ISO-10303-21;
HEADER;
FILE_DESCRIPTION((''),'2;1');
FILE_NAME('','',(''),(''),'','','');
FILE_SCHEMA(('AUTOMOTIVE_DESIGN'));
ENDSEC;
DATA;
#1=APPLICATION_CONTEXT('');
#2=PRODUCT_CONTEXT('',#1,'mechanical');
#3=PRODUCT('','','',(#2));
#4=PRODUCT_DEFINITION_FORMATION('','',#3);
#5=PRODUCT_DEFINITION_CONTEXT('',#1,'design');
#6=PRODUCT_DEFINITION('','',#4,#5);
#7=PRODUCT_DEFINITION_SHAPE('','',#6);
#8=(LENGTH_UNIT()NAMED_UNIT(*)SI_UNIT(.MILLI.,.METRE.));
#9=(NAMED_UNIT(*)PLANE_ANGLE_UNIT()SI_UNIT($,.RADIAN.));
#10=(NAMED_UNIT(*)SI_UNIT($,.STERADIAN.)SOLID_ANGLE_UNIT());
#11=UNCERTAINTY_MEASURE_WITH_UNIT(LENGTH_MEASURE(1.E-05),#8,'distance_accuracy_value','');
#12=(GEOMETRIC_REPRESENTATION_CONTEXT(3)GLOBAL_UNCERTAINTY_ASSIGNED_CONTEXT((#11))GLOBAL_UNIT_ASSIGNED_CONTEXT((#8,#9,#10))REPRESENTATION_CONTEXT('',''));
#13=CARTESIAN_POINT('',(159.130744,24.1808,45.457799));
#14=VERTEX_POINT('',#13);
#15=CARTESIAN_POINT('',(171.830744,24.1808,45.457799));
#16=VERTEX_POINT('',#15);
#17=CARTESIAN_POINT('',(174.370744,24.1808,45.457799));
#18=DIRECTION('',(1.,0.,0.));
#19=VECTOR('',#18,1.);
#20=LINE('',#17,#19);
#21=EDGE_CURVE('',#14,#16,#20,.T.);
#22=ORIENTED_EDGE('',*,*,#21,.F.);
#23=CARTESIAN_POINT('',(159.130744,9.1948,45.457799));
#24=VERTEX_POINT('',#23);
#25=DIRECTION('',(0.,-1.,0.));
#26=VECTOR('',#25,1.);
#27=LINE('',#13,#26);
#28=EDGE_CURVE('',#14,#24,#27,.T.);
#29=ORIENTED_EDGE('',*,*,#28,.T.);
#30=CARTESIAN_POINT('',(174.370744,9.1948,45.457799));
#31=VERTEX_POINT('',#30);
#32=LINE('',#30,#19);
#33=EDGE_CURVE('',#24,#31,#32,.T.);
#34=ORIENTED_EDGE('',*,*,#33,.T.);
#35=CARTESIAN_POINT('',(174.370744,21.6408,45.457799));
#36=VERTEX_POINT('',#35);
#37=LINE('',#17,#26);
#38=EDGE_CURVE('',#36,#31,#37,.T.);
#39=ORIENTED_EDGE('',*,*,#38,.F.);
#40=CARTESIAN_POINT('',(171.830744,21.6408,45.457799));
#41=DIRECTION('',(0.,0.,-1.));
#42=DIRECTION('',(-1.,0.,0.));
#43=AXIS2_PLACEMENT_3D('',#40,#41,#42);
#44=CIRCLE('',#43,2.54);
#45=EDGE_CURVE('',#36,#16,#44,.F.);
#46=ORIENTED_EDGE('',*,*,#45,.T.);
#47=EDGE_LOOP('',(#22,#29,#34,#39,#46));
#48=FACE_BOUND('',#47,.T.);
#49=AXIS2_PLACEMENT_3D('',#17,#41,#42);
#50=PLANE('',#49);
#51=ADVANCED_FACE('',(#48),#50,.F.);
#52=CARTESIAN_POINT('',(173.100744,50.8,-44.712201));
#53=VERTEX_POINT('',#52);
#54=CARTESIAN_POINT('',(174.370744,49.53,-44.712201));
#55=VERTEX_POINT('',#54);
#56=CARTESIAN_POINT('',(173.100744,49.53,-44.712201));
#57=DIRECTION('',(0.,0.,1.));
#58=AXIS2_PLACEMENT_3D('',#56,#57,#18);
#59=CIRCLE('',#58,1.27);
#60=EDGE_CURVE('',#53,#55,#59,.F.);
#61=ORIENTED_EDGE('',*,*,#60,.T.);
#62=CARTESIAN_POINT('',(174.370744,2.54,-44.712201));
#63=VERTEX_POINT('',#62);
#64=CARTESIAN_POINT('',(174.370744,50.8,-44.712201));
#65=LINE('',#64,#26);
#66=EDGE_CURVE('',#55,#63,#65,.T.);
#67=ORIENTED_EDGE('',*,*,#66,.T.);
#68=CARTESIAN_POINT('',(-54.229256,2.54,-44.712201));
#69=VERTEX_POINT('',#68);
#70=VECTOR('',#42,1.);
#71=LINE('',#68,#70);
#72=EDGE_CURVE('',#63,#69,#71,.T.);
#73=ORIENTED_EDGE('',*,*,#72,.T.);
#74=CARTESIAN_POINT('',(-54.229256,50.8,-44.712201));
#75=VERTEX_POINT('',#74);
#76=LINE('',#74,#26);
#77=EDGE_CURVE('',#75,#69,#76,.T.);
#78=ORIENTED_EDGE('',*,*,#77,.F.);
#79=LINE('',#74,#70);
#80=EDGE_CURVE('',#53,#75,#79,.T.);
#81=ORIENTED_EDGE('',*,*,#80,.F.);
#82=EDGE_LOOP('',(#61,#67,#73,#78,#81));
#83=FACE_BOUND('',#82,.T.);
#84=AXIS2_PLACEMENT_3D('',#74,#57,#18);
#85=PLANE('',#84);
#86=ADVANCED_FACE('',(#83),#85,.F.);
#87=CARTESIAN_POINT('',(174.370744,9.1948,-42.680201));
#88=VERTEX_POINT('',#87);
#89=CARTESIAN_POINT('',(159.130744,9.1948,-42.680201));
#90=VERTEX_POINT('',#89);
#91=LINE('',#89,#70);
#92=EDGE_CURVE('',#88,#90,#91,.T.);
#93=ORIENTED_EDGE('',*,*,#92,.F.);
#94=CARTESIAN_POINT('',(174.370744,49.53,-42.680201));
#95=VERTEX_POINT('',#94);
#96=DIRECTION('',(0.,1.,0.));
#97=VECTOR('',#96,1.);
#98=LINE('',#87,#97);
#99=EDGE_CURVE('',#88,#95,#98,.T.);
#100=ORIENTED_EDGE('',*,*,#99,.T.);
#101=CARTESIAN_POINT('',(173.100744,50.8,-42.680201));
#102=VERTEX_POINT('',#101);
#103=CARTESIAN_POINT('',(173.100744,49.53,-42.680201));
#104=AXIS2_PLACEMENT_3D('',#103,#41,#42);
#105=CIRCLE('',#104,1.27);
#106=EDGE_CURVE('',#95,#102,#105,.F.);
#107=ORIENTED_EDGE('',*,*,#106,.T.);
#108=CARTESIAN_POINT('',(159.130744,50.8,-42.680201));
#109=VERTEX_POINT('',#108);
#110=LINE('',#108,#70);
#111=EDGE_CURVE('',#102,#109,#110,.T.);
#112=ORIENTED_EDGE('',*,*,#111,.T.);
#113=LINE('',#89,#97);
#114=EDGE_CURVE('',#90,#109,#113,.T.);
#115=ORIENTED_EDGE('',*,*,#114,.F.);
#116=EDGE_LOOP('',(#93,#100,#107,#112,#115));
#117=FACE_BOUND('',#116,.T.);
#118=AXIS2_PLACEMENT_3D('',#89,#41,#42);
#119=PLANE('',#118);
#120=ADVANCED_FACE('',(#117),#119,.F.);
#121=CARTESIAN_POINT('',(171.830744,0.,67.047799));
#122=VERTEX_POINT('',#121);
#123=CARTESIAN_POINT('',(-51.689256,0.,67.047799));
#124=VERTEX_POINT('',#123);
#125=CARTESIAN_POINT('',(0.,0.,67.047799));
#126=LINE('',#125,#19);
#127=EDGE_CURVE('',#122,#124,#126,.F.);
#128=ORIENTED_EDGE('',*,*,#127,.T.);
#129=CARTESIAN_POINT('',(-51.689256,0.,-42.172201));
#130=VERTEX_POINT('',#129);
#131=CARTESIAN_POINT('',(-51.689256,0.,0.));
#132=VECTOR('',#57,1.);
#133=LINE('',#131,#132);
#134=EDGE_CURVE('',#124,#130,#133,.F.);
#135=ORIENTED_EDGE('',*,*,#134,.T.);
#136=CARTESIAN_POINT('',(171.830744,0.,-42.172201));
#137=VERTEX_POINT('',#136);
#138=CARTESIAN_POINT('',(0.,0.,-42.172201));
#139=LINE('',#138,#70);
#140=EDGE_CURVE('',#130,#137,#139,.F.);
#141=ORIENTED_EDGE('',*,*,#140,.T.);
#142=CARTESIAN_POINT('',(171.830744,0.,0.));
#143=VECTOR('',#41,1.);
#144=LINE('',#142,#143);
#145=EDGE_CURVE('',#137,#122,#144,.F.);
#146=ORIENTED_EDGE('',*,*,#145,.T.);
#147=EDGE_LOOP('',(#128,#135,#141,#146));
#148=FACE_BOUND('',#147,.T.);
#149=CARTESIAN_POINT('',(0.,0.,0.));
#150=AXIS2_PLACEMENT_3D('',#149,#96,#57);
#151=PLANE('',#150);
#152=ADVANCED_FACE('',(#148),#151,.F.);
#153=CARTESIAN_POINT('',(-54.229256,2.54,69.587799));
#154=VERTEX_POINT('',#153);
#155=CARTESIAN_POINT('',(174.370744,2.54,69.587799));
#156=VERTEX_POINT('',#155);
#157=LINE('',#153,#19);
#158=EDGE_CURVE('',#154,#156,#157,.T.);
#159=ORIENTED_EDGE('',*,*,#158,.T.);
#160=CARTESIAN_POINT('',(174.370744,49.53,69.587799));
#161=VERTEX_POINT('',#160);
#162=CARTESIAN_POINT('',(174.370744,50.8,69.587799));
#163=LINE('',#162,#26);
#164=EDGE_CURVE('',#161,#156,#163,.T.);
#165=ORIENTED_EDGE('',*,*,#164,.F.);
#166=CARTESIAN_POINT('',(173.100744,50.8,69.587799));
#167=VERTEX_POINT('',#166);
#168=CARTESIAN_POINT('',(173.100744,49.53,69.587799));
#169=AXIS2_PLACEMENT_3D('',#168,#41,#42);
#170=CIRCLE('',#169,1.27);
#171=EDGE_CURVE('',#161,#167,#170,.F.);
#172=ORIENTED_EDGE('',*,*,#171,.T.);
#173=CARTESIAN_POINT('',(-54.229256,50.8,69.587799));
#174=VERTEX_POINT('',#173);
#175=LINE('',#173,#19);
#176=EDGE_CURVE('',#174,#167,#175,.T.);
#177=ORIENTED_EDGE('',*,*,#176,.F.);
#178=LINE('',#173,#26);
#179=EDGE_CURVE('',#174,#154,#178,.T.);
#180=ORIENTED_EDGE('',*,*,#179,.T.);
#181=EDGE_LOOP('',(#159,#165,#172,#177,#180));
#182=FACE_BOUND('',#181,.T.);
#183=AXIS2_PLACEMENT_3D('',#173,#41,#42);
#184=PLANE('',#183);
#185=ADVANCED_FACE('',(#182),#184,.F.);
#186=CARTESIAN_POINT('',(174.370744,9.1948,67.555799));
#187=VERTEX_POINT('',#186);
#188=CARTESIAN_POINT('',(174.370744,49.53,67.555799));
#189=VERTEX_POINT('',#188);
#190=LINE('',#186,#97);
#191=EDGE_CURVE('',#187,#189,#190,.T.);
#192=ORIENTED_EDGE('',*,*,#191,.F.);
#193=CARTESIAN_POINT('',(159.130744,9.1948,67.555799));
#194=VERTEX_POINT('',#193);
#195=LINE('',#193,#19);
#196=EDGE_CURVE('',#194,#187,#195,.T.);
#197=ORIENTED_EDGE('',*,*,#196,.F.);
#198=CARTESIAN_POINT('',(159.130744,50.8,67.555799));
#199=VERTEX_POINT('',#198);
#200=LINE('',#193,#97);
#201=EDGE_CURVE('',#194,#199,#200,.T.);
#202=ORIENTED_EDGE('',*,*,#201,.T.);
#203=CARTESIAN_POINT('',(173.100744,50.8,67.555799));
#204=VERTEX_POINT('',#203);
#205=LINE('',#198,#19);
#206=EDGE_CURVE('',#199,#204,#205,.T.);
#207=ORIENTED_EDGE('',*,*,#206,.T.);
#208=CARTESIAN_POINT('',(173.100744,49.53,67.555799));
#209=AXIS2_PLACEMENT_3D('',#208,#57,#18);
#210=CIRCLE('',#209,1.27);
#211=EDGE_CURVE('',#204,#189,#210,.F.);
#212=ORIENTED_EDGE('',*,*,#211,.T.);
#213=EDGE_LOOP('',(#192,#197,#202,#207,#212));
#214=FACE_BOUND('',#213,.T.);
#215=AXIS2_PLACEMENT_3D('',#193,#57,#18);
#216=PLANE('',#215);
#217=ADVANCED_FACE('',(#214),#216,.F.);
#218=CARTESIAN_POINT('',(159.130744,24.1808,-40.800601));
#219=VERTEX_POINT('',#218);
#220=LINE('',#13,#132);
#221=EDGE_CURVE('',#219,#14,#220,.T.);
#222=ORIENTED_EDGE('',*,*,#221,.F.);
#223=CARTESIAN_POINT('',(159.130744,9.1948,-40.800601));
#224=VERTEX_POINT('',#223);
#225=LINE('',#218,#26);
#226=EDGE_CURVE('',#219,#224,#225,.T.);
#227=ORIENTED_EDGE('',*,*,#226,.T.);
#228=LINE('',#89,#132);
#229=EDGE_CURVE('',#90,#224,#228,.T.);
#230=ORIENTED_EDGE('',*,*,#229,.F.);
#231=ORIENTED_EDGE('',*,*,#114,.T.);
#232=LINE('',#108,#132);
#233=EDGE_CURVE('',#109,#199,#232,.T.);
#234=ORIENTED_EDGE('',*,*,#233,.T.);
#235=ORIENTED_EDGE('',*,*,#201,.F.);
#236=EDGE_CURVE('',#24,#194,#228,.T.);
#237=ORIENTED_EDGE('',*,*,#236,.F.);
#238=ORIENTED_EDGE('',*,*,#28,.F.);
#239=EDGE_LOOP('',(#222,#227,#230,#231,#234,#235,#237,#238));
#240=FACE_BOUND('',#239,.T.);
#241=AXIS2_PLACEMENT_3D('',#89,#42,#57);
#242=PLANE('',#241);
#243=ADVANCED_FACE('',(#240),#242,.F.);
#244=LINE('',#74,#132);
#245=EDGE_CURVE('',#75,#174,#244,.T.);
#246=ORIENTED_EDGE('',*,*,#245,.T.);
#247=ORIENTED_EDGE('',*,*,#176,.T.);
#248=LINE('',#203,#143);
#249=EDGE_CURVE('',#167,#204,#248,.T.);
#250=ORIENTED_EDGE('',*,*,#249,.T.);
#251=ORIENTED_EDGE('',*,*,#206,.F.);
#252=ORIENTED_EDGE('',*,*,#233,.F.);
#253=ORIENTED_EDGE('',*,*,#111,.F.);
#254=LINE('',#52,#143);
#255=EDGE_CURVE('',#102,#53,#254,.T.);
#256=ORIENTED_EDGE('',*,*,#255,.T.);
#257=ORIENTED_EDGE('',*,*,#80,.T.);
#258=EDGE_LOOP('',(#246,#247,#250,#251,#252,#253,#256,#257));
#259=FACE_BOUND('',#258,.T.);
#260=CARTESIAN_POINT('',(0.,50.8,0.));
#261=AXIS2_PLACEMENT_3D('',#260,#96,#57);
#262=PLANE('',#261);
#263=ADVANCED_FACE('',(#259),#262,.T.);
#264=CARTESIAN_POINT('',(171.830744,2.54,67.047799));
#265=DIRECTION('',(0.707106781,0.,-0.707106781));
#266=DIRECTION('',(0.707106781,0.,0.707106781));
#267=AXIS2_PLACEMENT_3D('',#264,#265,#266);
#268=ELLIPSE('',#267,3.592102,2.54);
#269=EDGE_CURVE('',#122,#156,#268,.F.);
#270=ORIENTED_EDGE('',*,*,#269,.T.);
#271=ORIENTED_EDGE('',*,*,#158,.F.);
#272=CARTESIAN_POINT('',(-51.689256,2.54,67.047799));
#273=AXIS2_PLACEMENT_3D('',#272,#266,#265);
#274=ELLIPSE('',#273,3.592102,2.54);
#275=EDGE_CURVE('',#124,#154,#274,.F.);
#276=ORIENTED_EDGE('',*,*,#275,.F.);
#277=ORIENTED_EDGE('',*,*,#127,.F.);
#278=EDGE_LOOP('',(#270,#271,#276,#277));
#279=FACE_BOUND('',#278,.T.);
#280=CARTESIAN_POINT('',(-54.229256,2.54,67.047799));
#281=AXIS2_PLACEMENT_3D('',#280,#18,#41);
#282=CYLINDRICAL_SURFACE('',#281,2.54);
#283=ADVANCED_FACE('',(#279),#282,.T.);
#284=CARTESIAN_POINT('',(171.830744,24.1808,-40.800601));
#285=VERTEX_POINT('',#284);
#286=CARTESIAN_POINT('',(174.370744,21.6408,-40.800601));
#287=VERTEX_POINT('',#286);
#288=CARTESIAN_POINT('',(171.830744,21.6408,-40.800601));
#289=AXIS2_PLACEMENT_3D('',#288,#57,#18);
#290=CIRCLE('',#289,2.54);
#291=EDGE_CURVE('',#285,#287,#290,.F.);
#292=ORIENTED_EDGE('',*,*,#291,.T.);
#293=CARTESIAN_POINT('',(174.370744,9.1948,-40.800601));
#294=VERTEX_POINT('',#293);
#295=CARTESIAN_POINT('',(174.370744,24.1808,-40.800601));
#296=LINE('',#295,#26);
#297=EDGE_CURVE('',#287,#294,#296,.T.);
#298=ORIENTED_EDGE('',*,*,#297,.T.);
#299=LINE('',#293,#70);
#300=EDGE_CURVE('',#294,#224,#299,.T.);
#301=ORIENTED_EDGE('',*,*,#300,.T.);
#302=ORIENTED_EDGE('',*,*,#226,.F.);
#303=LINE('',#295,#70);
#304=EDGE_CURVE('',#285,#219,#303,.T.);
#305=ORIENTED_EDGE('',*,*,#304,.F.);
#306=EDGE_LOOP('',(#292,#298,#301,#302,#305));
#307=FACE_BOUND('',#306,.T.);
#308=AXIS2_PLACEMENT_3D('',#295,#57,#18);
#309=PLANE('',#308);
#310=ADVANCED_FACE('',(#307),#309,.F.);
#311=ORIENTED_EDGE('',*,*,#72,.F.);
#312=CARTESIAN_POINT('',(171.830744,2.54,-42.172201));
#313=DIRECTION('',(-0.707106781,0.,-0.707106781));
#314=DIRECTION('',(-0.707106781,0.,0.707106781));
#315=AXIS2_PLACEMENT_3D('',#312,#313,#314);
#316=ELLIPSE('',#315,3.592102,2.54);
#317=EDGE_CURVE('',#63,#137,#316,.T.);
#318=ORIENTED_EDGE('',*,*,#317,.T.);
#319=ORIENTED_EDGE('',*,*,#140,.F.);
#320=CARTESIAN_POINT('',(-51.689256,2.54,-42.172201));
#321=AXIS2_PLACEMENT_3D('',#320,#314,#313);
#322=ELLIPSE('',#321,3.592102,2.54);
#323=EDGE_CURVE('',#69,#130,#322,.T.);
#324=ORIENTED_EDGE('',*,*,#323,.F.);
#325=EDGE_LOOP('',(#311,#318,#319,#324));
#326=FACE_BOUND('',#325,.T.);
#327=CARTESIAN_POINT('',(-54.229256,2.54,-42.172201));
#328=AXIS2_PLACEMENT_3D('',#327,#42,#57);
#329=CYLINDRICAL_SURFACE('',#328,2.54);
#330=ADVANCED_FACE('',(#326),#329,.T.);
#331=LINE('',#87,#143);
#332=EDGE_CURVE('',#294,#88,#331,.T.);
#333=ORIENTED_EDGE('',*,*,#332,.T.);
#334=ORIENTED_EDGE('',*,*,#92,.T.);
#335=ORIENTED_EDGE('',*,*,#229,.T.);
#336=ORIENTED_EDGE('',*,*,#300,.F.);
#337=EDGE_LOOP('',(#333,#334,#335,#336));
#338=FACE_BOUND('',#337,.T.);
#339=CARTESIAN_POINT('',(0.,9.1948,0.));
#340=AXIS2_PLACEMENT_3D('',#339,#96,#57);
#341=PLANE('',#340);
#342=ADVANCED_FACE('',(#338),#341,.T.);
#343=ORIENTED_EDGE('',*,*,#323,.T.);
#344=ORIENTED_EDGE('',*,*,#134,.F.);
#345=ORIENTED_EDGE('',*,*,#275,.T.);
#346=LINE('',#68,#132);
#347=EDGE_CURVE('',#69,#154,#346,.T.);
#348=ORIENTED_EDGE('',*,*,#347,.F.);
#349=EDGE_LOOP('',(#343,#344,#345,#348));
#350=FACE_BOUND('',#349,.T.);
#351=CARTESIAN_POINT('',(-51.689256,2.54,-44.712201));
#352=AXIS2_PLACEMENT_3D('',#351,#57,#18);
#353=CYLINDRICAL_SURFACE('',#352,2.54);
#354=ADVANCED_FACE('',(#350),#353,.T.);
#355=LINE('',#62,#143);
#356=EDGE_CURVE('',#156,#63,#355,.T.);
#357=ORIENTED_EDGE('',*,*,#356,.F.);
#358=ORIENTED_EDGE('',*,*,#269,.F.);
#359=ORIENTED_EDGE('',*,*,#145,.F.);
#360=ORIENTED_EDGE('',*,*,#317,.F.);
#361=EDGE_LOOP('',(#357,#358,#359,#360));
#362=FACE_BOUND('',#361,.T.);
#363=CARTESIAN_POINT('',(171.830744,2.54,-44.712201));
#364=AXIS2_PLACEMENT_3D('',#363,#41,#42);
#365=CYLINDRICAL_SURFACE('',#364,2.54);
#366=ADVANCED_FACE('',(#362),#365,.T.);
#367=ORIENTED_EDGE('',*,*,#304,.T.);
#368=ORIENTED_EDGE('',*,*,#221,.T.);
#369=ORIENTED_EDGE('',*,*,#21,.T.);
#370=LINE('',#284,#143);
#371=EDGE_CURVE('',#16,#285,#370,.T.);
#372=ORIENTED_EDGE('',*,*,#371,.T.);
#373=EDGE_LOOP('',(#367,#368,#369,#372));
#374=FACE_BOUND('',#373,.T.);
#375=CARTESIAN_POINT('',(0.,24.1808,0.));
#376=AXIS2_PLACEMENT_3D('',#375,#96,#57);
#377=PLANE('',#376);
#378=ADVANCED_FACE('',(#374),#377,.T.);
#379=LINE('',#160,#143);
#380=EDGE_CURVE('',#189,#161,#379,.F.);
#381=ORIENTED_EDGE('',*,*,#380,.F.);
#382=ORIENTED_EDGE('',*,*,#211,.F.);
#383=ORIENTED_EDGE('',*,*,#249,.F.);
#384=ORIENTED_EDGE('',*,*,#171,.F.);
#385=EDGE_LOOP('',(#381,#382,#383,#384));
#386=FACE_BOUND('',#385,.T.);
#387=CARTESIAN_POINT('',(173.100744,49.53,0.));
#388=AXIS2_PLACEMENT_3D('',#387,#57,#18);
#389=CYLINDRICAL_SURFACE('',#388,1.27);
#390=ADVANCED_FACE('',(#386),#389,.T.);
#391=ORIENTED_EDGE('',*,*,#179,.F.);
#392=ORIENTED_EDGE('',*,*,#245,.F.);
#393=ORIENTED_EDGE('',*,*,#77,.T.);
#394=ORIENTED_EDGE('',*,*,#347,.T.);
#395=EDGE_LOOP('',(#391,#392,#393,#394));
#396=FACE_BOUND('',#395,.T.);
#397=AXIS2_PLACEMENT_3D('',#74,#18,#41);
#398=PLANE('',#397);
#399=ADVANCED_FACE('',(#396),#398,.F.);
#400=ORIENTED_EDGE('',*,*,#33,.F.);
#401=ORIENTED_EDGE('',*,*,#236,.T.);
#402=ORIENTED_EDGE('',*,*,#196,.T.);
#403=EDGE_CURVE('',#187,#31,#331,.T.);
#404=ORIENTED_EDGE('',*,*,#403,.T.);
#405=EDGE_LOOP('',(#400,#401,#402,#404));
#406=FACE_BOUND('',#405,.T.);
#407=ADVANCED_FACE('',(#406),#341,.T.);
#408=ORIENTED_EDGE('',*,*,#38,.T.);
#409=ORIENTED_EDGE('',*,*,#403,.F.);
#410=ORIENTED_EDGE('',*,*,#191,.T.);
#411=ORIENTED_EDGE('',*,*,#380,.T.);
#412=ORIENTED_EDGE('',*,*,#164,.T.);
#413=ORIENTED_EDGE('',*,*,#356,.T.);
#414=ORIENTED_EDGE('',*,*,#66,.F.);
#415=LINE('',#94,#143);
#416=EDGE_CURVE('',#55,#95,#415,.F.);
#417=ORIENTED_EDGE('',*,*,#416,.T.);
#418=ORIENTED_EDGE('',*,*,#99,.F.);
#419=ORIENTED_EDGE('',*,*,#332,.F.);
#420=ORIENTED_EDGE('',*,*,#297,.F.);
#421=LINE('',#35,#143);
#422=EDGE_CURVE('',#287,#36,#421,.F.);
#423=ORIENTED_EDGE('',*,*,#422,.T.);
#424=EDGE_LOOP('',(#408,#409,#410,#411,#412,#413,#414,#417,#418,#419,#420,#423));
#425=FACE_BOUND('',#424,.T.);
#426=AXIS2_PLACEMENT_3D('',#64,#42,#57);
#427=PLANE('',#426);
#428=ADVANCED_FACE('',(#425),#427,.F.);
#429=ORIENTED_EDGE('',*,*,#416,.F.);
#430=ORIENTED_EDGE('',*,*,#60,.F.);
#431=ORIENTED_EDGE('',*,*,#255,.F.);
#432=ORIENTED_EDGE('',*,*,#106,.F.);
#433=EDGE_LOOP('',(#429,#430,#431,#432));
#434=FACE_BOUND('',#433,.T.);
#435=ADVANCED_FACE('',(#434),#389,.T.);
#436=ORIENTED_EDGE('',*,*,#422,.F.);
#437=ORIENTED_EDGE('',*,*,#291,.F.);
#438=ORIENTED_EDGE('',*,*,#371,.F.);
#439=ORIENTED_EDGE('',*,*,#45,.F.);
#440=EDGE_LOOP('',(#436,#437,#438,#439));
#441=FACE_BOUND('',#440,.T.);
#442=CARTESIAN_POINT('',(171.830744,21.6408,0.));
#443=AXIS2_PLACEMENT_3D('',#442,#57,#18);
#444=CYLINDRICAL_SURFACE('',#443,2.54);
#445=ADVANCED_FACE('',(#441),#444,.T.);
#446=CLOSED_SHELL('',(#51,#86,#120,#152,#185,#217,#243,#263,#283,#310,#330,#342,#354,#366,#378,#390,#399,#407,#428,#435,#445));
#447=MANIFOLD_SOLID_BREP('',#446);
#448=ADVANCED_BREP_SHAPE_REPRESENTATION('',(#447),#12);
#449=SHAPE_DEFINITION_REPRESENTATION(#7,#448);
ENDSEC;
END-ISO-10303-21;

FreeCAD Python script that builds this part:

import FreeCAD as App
import Part
import Sketcher
from FreeCAD import Vector
Q = App.Units.Quantity


def edges_at(feature, points):
    """Names of the edges that pass closest to the given points."""
    edges = feature.Shape.Edges
    near = lambda p: min(range(len(edges)), key=lambda i: edges[i].distToShape(Part.Vertex(*p))[0])
    return sorted({f"Edge{near(p) + 1}" for p in points})


def add_polygon(sketch, points):
    """Adds a closed chain of lines whose ends are joined by coincident constraints."""
    first, n = sketch.GeometryCount, len(points)
    for a, b in zip(points, points[1:] + points[:1]):
        sketch.addGeometry(Part.LineSegment(App.Vector(*a, 0), App.Vector(*b, 0)), False)
    for i in range(n):
        sketch.addConstraint(Sketcher.Constraint("Coincident", first + i, 2, first + (i + 1) % n, 1))

doc = App.newDocument("Part")
body = doc.addObject("PartDesign::Body", "Body")

sketch1 = body.newObject("Sketcher::SketchObject", "Sketch")
sketch1.AttachmentSupport = (doc.getObject("XZ_Plane"), [""])
sketch1.MapMode = "FlatFace"
add_polygon(sketch1, [(-54, -45), (-54, 70), (174, 70), (174, -45)])
sketch1.addConstraint([
    Sketcher.Constraint("Vertical", 0),
    Sketcher.Constraint("Horizontal", 1),
    Sketcher.Constraint("Vertical", 2),
    Sketcher.Constraint("Horizontal", 3),
    Sketcher.Constraint("DistanceX", 1, 1, 1, 2, Q("9 in")),
    Sketcher.Constraint("DistanceY", 0, 1, 0, 2, Q("4.5 in")),
    Sketcher.Constraint("DistanceY", -1, 1, 0, 2, 69.587799),
    Sketcher.Constraint("DistanceX", 0, 2, -1, 1, 54.229256),
])
pad1 = body.newObject("PartDesign::Pad", "Pad")
pad1.Profile = sketch1
pad1.Length = Q("2 in")
pad1.Reversed = True

sketch2 = body.newObject("Sketcher::SketchObject", "Sketch001")
sketch2.AttachmentSupport = (doc.getObject("XZ_Plane"), [""])
sketch2.MapMode = "FlatFace"
sketch2.AttachmentOffset = App.Placement(Vector(0, 0, -2 * 25.4), App.Rotation())
add_polygon(sketch2, [(159, -43), (159, 68), (174, 68), (174, -43)])
sketch2.addConstraint([
    Sketcher.Constraint("Vertical", 0),
    Sketcher.Constraint("Horizontal", 1),
    Sketcher.Constraint("Vertical", 2),
    Sketcher.Constraint("Horizontal", 3),
    Sketcher.Constraint("DistanceX", 1, 1, 1, 2, Q("0.6 in")),
    Sketcher.Constraint("DistanceY", 0, 1, 0, 2, Q("4.34 in")),
    Sketcher.Constraint("DistanceY", -1, 1, 0, 2, 67.555799),
    Sketcher.Constraint("DistanceX", -1, 1, 0, 2, 159.130744),
])
pocket1 = body.newObject("PartDesign::Pocket", "Pocket")
pocket1.Profile = sketch2
pocket1.Length = Q("1.638 in")
pocket1.Reversed = True

sketch3 = body.newObject("Sketcher::SketchObject", "Sketch002")
sketch3.AttachmentSupport = (doc.getObject("XZ_Plane"), [""])
sketch3.MapMode = "FlatFace"
sketch3.AttachmentOffset = App.Placement(Vector(0, 0, -0.362 * 25.4), App.Rotation())
add_polygon(sketch3, [(159, -41), (159, 45), (174, 45), (174, -41)])
sketch3.addConstraint([
    Sketcher.Constraint("Vertical", 0),
    Sketcher.Constraint("Horizontal", 1),
    Sketcher.Constraint("Vertical", 2),
    Sketcher.Constraint("Horizontal", 3),
    Sketcher.Constraint("DistanceX", 1, 1, 1, 2, Q("0.6 in")),
    Sketcher.Constraint("DistanceY", 0, 1, 0, 2, Q("3.396 in")),
    Sketcher.Constraint("DistanceY", -1, 1, 0, 2, 45.457799),
    Sketcher.Constraint("DistanceX", -1, 1, 0, 2, 159.130744),
])
pad2 = body.newObject("PartDesign::Pad", "Pad001")
pad2.Profile = sketch3
pad2.Length = Q("0.59 in")
pad2.Reversed = True
doc.recompute()

fillet = body.newObject("PartDesign::Fillet", "Fillet")
fillet.Base = (pad2, edges_at(pad2, [(174.371, 24.181, 2.329)]))
fillet.Radius = Q("0.1 in")
doc.recompute()

fillet2 = body.newObject("PartDesign::Fillet", "Fillet001")
fillet2.Base = (fillet, edges_at(fillet, [(174.371, 50.8, 68.572), (174.371, 50.8, -43.696)]))
fillet2.Radius = Q("0.05 in")
doc.recompute()

fillet3 = body.newObject("PartDesign::Fillet", "Fillet002")
fillet3.Base = (fillet2, edges_at(fillet2, [
    (60.071, 0, -44.712),
    (174.371, 0, 12.438),
    (60.071, 0, 69.588),
    (-54.229, 0, 12.438),
]))
fillet3.Radius = Q("0.1 in")

doc.recompute()
